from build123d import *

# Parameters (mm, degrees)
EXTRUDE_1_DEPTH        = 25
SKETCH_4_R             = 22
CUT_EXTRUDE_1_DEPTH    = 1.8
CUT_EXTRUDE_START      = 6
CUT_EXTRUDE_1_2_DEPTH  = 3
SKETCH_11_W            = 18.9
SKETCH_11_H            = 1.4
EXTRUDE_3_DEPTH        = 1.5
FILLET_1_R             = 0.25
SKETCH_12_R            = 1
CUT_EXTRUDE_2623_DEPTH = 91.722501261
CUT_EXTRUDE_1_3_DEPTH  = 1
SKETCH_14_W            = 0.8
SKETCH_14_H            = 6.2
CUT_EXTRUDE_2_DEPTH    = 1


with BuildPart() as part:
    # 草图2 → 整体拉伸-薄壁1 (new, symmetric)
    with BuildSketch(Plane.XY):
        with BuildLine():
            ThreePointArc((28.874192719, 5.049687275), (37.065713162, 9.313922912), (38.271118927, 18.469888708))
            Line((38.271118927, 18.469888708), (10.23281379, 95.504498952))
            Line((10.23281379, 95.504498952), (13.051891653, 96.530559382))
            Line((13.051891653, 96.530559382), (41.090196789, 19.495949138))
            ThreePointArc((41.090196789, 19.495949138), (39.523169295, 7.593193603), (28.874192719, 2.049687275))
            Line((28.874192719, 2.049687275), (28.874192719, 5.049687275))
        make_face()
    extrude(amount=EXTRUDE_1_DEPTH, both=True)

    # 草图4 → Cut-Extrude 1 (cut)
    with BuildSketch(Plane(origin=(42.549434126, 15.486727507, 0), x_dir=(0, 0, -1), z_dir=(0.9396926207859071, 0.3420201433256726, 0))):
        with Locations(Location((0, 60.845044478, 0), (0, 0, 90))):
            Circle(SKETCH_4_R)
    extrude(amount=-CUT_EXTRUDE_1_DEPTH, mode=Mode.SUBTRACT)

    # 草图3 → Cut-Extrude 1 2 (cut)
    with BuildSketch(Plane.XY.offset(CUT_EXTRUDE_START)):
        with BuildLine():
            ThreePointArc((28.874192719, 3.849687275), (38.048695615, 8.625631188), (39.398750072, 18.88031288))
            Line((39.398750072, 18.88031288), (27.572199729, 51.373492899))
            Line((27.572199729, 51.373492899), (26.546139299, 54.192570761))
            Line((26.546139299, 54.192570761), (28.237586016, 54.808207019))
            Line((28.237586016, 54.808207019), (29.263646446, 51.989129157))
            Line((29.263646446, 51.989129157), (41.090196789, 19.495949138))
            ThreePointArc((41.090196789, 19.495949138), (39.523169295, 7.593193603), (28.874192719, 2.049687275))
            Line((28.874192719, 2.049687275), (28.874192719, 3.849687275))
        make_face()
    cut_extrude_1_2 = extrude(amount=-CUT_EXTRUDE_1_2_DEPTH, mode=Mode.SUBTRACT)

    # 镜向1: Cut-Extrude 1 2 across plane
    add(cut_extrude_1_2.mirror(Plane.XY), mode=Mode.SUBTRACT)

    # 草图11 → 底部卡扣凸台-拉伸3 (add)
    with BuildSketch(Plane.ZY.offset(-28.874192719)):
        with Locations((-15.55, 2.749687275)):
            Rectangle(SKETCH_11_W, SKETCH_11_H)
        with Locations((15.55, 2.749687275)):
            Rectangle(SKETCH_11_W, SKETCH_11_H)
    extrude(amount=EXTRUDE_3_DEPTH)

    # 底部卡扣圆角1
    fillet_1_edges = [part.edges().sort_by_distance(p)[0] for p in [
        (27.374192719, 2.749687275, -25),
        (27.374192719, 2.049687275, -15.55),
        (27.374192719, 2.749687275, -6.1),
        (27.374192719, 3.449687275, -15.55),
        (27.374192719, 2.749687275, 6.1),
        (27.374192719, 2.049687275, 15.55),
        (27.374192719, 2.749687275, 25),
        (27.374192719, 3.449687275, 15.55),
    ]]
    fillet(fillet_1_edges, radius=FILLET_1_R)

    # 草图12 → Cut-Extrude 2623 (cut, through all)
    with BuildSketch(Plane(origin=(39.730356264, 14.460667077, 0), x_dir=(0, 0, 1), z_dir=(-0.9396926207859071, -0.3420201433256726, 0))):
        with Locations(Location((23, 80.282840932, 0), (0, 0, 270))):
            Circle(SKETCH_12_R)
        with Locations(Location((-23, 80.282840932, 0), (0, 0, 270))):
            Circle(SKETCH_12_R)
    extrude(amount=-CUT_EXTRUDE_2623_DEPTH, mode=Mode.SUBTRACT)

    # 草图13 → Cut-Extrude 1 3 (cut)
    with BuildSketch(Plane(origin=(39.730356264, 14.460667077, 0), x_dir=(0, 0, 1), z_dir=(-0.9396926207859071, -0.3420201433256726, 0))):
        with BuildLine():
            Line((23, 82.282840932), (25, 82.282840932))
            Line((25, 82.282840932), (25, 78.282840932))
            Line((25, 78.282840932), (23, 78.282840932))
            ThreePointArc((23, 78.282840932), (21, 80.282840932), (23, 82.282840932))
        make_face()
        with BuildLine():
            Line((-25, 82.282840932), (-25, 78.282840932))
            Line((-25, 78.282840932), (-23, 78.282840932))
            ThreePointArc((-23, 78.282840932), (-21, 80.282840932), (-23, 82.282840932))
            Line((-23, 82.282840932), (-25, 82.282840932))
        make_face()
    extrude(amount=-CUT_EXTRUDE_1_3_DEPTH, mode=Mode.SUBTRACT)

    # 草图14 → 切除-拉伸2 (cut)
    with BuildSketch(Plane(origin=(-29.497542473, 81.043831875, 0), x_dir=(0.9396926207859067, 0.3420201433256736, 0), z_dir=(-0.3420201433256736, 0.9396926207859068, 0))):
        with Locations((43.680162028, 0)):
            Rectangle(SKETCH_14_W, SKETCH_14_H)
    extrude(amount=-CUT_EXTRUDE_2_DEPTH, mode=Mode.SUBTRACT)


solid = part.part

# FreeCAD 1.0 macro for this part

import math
import FreeCAD as App
import Part
import Sketcher
from FreeCAD import Vector
Q = App.Units.Quantity


def edges_at(feature, points):
    """Names of the edges that pass closest to the given points."""
    edges = feature.Shape.Edges
    near = lambda p: min(range(len(edges)), key=lambda i: edges[i].distToShape(Part.Vertex(*p))[0])
    return sorted({f"Edge{near(p) + 1}" for p in points})

doc = App.newDocument("Part")
body = doc.addObject("PartDesign::Body", "Body")

# Sketch on XY plane
sketch1 = body.newObject("Sketcher::SketchObject", "Sketch")
sketch1.AttachmentSupport = (doc.getObject("XY_Plane"), [""])
sketch1.MapMode = "FlatFace"
sketch1.addGeometry(Part.ArcOfCircle(Part.Circle(Vector(28.9, 15, 0), Vector(0, 0, 1), 10), math.radians(-90), math.radians(20)), False)
sketch1.addGeometry(Part.LineSegment(Vector(28.9, 5, 0), Vector(28.9, 2, 0)), False)
sketch1.addGeometry(Part.ArcOfCircle(Part.Circle(Vector(28.9, 15, 0), Vector(0, 0, 1), 13), math.radians(-90), math.radians(20)), False)
sketch1.addGeometry(Part.LineSegment(Vector(41.1, 19.5, 0), Vector(13.1, 96.5, 0)), False)
sketch1.addGeometry(Part.LineSegment(Vector(13.1, 96.5, 0), Vector(10.2, 95.5, 0)), False)
sketch1.addGeometry(Part.LineSegment(Vector(10.2, 95.5, 0), Vector(38.3, 18.5, 0)), False)
sketch1.addConstraint(Sketcher.Constraint("Coincident", 0, 1, 1, 1))
sketch1.addConstraint(Sketcher.Constraint("Coincident", 1, 2, 2, 1))
sketch1.addConstraint(Sketcher.Constraint("Tangent", 2, 2, 3, 1))
sketch1.addConstraint(Sketcher.Constraint("Coincident", 3, 2, 4, 1))
sketch1.addConstraint(Sketcher.Constraint("Coincident", 4, 2, 5, 1))
sketch1.addConstraint(Sketcher.Constraint("Tangent", 5, 2, 0, 2))
sketch1.addConstraint(Sketcher.Constraint("Vertical", 1))
sketch1.addConstraint(Sketcher.Constraint("Coincident", 2, 3, 0, 3))
sketch1.addConstraint(Sketcher.Constraint("Perpendicular", 3, 4))
sketch1.addConstraint(Sketcher.Constraint("Perpendicular", 4, 5))
sketch1.addConstraint(Sketcher.Constraint("Vertical", 2, 3, 0, 1))
sketch1.addConstraint(Sketcher.Constraint("Radius", 0, 10.0))
sketch1.addConstraint(Sketcher.Constraint("Radius", 2, 13.0))
sketch1.addConstraint(Sketcher.Constraint("Angle", 3, Q("110 deg")))
sketch1.addConstraint(Sketcher.Constraint("DistanceY", -1, 1, 4, 2, 95.504499))
sketch1.addConstraint(Sketcher.Constraint("DistanceX", 3, 2, 0, 3, 15.822301))
sketch1.addConstraint(Sketcher.Constraint("DistanceX", -1, 1, 3, 2, 13.051892))
pad1 = body.newObject("PartDesign::Pad", "Pad")
pad1.Profile = sketch1
pad1.Length = 50
pad1.Midplane = True

# Sketch on an angled plane
sketch2 = body.newObject("Sketcher::SketchObject", "Sketch001")
sketch2.Placement = App.Placement(Vector(42.549434, 15.486728, 0), App.Rotation(Vector(0, 0, -1), Vector(-0.342020143, 0.939692621, 0), Vector(0.939692621, 0.342020143, 0), "ZXY"))
sketch2.addGeometry(Part.Circle(Vector(0, 61, 0), Vector(0, 0, 1), 22), False)
sketch2.addConstraint(Sketcher.Constraint("PointOnObject", 0, 3, -2))
sketch2.addConstraint(Sketcher.Constraint("Diameter", 0, 44.0))
sketch2.addConstraint(Sketcher.Constraint("DistanceY", -1, 1, 0, 3, 60.845044))
pocket1 = body.newObject("PartDesign::Pocket", "Pocket")
pocket1.Profile = sketch2
pocket1.Length = 1.8

# Sketch on XY plane
sketch3 = body.newObject("Sketcher::SketchObject", "Sketch002")
sketch3.AttachmentSupport = (doc.getObject("XY_Plane"), [""])
sketch3.MapMode = "FlatFace"
sketch3.AttachmentOffset = App.Placement(Vector(0, 0, 6), App.Rotation())
sketch3.addGeometry(Part.ArcOfCircle(Part.Circle(Vector(28.9, 15, 0), Vector(0, 0, 1), 11.2), math.radians(-90), math.radians(20)), False)
sketch3.addGeometry(Part.LineSegment(Vector(28.9, 3.8, 0), Vector(28.9, 2, 0)), False)
sketch3.addGeometry(Part.ArcOfCircle(Part.Circle(Vector(28.9, 15, 0), Vector(0, 0, 1), 13), math.radians(-90), math.radians(20)), False)
sketch3.addGeometry(Part.LineSegment(Vector(41.1, 19.5, 0), Vector(29.3, 52, 0)), False)
sketch3.addGeometry(Part.LineSegment(Vector(29.3, 52, 0), Vector(28.2, 54.8, 0)), False)
sketch3.addGeometry(Part.LineSegment(Vector(28.2, 54.8, 0), Vector(26.5, 54.2, 0)), False)
sketch3.addGeometry(Part.LineSegment(Vector(26.5, 54.2, 0), Vector(27.6, 51.4, 0)), False)
sketch3.addGeometry(Part.LineSegment(Vector(27.6, 51.4, 0), Vector(39.4, 18.9, 0)), False)
sketch3.addConstraint(Sketcher.Constraint("Coincident", 0, 1, 1, 1))
sketch3.addConstraint(Sketcher.Constraint("Coincident", 1, 2, 2, 1))
sketch3.addConstraint(Sketcher.Constraint("Tangent", 2, 2, 3, 1))
sketch3.addConstraint(Sketcher.Constraint("Coincident", 3, 2, 4, 1))
sketch3.addConstraint(Sketcher.Constraint("Coincident", 4, 2, 5, 1))
sketch3.addConstraint(Sketcher.Constraint("Coincident", 5, 2, 6, 1))
sketch3.addConstraint(Sketcher.Constraint("Coincident", 6, 2, 7, 1))
sketch3.addConstraint(Sketcher.Constraint("Tangent", 7, 2, 0, 2))
sketch3.addConstraint(Sketcher.Constraint("Vertical", 1))
sketch3.addConstraint(Sketcher.Constraint("Coincident", 2, 3, 0, 3))
sketch3.addConstraint(Sketcher.Constraint("Parallel", 3, 4))
sketch3.addConstraint(Sketcher.Constraint("Perpendicular", 4, 5))
sketch3.addConstraint(Sketcher.Constraint("Perpendicular", 5, 6))
sketch3.addConstraint(Sketcher.Constraint("Parallel", 6, 7))
sketch3.addConstraint(Sketcher.Constraint("Vertical", 2, 3, 0, 1))
sketch3.addConstraint(Sketcher.Constraint("Equal", 4, 6))
sketch3.addConstraint(Sketcher.Constraint("Radius", 2, 13.0))
sketch3.addConstraint(Sketcher.Constraint("Radius", 0, 11.2))
sketch3.addConstraint(Sketcher.Constraint("Angle", 3, Q("110 deg")))
sketch3.addConstraint(Sketcher.Constraint("Distance", 4, 3.0))
sketch3.addConstraint(Sketcher.Constraint("DistanceX", -1, 1, 6, 2, 27.5722))
sketch3.addConstraint(Sketcher.Constraint("Distance", 3, 34.57852))
sketch3.addConstraint(Sketcher.Constraint("DistanceY", -1, 1, 2, 2, 19.495949))
pocket2 = body.newObject("PartDesign::Pocket", "Pocket001")
pocket2.Profile = sketch3
pocket2.Length = 3
doc.recompute()

mirrored = body.newObject("PartDesign::Mirrored", "Mirrored")
mirrored.Originals = [pocket2]
mirrored.MirrorPlane = (doc.getObject("XY_Plane"), [""])
body.Tip = mirrored

# Sketch on YZ plane
sketch4 = body.newObject("Sketcher::SketchObject", "Sketch003")
sketch4.AttachmentSupport = (doc.getObject("YZ_Plane"), [""])
sketch4.MapMode = "FlatFace"
sketch4.AttachmentOffset = App.Placement(Vector(0, 0, 28.874193), App.Rotation())
sketch4.addGeometry(Part.LineSegment(Vector(3.4, -25, 0), Vector(2, -25, 0)), False)
sketch4.addGeometry(Part.LineSegment(Vector(2, -25, 0), Vector(2, -6.1, 0)), False)
sketch4.addGeometry(Part.LineSegment(Vector(2, -6.1, 0), Vector(3.4, -6.1, 0)), False)
sketch4.addGeometry(Part.LineSegment(Vector(3.4, -6.1, 0), Vector(3.4, -25, 0)), False)
sketch4.addGeometry(Part.LineSegment(Vector(3.4, 6.1, 0), Vector(2, 6.1, 0)), False)
sketch4.addGeometry(Part.LineSegment(Vector(2, 6.1, 0), Vector(2, 25, 0)), False)
sketch4.addGeometry(Part.LineSegment(Vector(2, 25, 0), Vector(3.4, 25, 0)), False)
sketch4.addGeometry(Part.LineSegment(Vector(3.4, 25, 0), Vector(3.4, 6.1, 0)), False)
sketch4.addConstraint(Sketcher.Constraint("Coincident", 0, 2, 1, 1))
sketch4.addConstraint(Sketcher.Constraint("Coincident", 1, 2, 2, 1))
sketch4.addConstraint(Sketcher.Constraint("Coincident", 2, 2, 3, 1))
sketch4.addConstraint(Sketcher.Constraint("Coincident", 3, 2, 0, 1))
sketch4.addConstraint(Sketcher.Constraint("Coincident", 4, 2, 5, 1))
sketch4.addConstraint(Sketcher.Constraint("Coincident", 5, 2, 6, 1))
sketch4.addConstraint(Sketcher.Constraint("Coincident", 6, 2, 7, 1))
sketch4.addConstraint(Sketcher.Constraint("Coincident", 7, 2, 4, 1))
sketch4.addConstraint(Sketcher.Constraint("Horizontal", 0))
sketch4.addConstraint(Sketcher.Constraint("Vertical", 1))
sketch4.addConstraint(Sketcher.Constraint("Horizontal", 2))
sketch4.addConstraint(Sketcher.Constraint("Vertical", 3))
sketch4.addConstraint(Sketcher.Constraint("Horizontal", 4))
sketch4.addConstraint(Sketcher.Constraint("Vertical", 5))
sketch4.addConstraint(Sketcher.Constraint("Horizontal", 6))
sketch4.addConstraint(Sketcher.Constraint("Vertical", 7))
sketch4.addConstraint(Sketcher.Constraint("Symmetric", 1, 2, 4, 2, -1))
sketch4.addConstraint(Sketcher.Constraint("Symmetric", 3, 2, 6, 2, -1))
sketch4.addConstraint(Sketcher.Constraint("DistanceX", 0, 2, 0, 1, 1.4))
sketch4.addConstraint(Sketcher.Constraint("DistanceY", 1, 1, 1, 2, 18.9))
sketch4.addConstraint(Sketcher.Constraint("DistanceY", 0, 2, -1, 1, 25.0))
sketch4.addConstraint(Sketcher.Constraint("DistanceX", -1, 1, 0, 2, 2.049687))
pad2 = body.newObject("PartDesign::Pad", "Pad001")
pad2.Profile = sketch4
pad2.Length = 1.5
pad2.Reversed = True
doc.recompute()

fillet = body.newObject("PartDesign::Fillet", "Fillet")
fillet.Base = (pad2, edges_at(pad2, [
    (27.374, 2.75, -25),
    (27.374, 2.05, -15.55),
    (27.374, 2.75, -6.1),
    (27.374, 3.45, -15.55),
    (27.374, 2.75, 6.1),
    (27.374, 2.05, 15.55),
    (27.374, 2.75, 25),
    (27.374, 3.45, 15.55),
]))
fillet.Radius = 0.25

# Sketch on an angled plane
sketch5 = body.newObject("Sketcher::SketchObject", "Sketch004")
sketch5.Placement = App.Placement(Vector(39.730356, 14.460667, 0), App.Rotation(Vector(0, 0, 1), Vector(-0.342020143, 0.939692621, 0), Vector(-0.939692621, -0.342020143, 0), "ZXY"))
sketch5.addGeometry(Part.Circle(Vector(23, 80.3, 0), Vector(0, 0, 1), 1), False)
sketch5.addGeometry(Part.Circle(Vector(-23, 80.3, 0), Vector(0, 0, 1), 1), False)
sketch5.addConstraint(Sketcher.Constraint("Equal", 0, 1))
sketch5.addConstraint(Sketcher.Constraint("Symmetric", 0, 3, 1, 3, -2))
sketch5.addConstraint(Sketcher.Constraint("Diameter", 0, 2.0))
sketch5.addConstraint(Sketcher.Constraint("DistanceX", -1, 1, 0, 3, 23.0))
sketch5.addConstraint(Sketcher.Constraint("DistanceY", -1, 1, 0, 3, 80.282841))
pocket3 = body.newObject("PartDesign::Pocket", "Pocket002")
pocket3.Profile = sketch5
pocket3.Type = "ThroughAll"

# Sketch on an angled plane
sketch6 = body.newObject("Sketcher::SketchObject", "Sketch005")
sketch6.Placement = App.Placement(Vector(39.730356, 14.460667, 0), App.Rotation(Vector(0, 0, 1), Vector(-0.342020143, 0.939692621, 0), Vector(-0.939692621, -0.342020143, 0), "ZXY"))
sketch6.addGeometry(Part.LineSegment(Vector(25, 82.3, 0), Vector(23, 82.3, 0)), False)
sketch6.addGeometry(Part.ArcOfCircle(Part.Circle(Vector(23, 80.3, 0), Vector(0, 0, 1), 2), math.radians(90), math.radians(270)), False)
sketch6.addGeometry(Part.LineSegment(Vector(23, 78.3, 0), Vector(25, 78.3, 0)), False)
sketch6.addGeometry(Part.LineSegment(Vector(25, 78.3, 0), Vector(25, 82.3, 0)), False)
sketch6.addGeometry(Part.LineSegment(Vector(-25, 82.3, 0), Vector(-25, 78.3, 0)), False)
sketch6.addGeometry(Part.LineSegment(Vector(-25, 78.3, 0), Vector(-23, 78.3, 0)), False)
sketch6.addGeometry(Part.ArcOfCircle(Part.Circle(Vector(-23, 80.3, 0), Vector(0, 0, 1), 2), math.radians(-90), math.radians(90)), False)
sketch6.addGeometry(Part.LineSegment(Vector(-23, 82.3, 0), Vector(-25, 82.3, 0)), False)
sketch6.addConstraint(Sketcher.Constraint("Tangent", 0, 2, 1, 1))
sketch6.addConstraint(Sketcher.Constraint("Tangent", 1, 2, 2, 1))
sketch6.addConstraint(Sketcher.Constraint("Coincident", 2, 2, 3, 1))
sketch6.addConstraint(Sketcher.Constraint("Coincident", 3, 2, 0, 1))
sketch6.addConstraint(Sketcher.Constraint("Coincident", 4, 2, 5, 1))
sketch6.addConstraint(Sketcher.Constraint("Tangent", 5, 2, 6, 1))
sketch6.addConstraint(Sketcher.Constraint("Tangent", 6, 2, 7, 1))
sketch6.addConstraint(Sketcher.Constraint("Coincident", 7, 2, 4, 1))
sketch6.addConstraint(Sketcher.Constraint("Horizontal", 0))
sketch6.addConstraint(Sketcher.Constraint("Horizontal", 2))
sketch6.addConstraint(Sketcher.Constraint("Vertical", 3))
sketch6.addConstraint(Sketcher.Constraint("Vertical", 4))
sketch6.addConstraint(Sketcher.Constraint("Horizontal", 5))
sketch6.addConstraint(Sketcher.Constraint("Horizontal", 7))
sketch6.addConstraint(Sketcher.Constraint("Equal", 1, 6))
sketch6.addConstraint(Sketcher.Constraint("Symmetric", 1, 3, 6, 3, -2))
sketch6.addConstraint(Sketcher.Constraint("Equal", 2, 5))
sketch6.addConstraint(Sketcher.Constraint("Radius", 1, 2.0))
sketch6.addConstraint(Sketcher.Constraint("DistanceX", 0, 2, 0, 1, 2.0))
sketch6.addConstraint(Sketcher.Constraint("DistanceX", -1, 1, 1, 3, 23.0))
sketch6.addConstraint(Sketcher.Constraint("DistanceY", -1, 1, 1, 3, 80.282841))
pocket4 = body.newObject("PartDesign::Pocket", "Pocket003")
pocket4.Profile = sketch6
pocket4.Length = 1

# Sketch on an angled plane
sketch7 = body.newObject("Sketcher::SketchObject", "Sketch006")
sketch7.Placement = App.Placement(Vector(-29.497542, 81.043832, 0), App.Rotation(Vector(0.939692621, 0.342020143, 0), Vector(0, 0, -1), Vector(-0.342020143, 0.939692621, 0), "ZXY"))
sketch7.addGeometry(Part.LineSegment(Vector(43.3, 3.1, 0), Vector(43.3, -3.1, 0)), False)
sketch7.addGeometry(Part.LineSegment(Vector(43.3, -3.1, 0), Vector(44.1, -3.1, 0)), False)
sketch7.addGeometry(Part.LineSegment(Vector(44.1, -3.1, 0), Vector(44.1, 3.1, 0)), False)
sketch7.addGeometry(Part.LineSegment(Vector(44.1, 3.1, 0), Vector(43.3, 3.1, 0)), False)
sketch7.addConstraint(Sketcher.Constraint("Coincident", 0, 2, 1, 1))
sketch7.addConstraint(Sketcher.Constraint("Coincident", 1, 2, 2, 1))
sketch7.addConstraint(Sketcher.Constraint("Coincident", 2, 2, 3, 1))
sketch7.addConstraint(Sketcher.Constraint("Coincident", 3, 2, 0, 1))
sketch7.addConstraint(Sketcher.Constraint("Vertical", 0))
sketch7.addConstraint(Sketcher.Constraint("Horizontal", 1))
sketch7.addConstraint(Sketcher.Constraint("Vertical", 2))
sketch7.addConstraint(Sketcher.Constraint("Horizontal", 3))
sketch7.addConstraint(Sketcher.Constraint("DistanceX", 1, 1, 1, 2, 0.8))
sketch7.addConstraint(Sketcher.Constraint("DistanceY", 0, 2, 0, 1, 6.2))
sketch7.addConstraint(Sketcher.Constraint("DistanceY", 0, 2, -1, 1, 3.1))
sketch7.addConstraint(Sketcher.Constraint("DistanceX", -1, 1, 0, 2, 43.280162))
pocket5 = body.newObject("PartDesign::Pocket", "Pocket004")
pocket5.Profile = sketch7
pocket5.Length = 1

doc.recompute()
